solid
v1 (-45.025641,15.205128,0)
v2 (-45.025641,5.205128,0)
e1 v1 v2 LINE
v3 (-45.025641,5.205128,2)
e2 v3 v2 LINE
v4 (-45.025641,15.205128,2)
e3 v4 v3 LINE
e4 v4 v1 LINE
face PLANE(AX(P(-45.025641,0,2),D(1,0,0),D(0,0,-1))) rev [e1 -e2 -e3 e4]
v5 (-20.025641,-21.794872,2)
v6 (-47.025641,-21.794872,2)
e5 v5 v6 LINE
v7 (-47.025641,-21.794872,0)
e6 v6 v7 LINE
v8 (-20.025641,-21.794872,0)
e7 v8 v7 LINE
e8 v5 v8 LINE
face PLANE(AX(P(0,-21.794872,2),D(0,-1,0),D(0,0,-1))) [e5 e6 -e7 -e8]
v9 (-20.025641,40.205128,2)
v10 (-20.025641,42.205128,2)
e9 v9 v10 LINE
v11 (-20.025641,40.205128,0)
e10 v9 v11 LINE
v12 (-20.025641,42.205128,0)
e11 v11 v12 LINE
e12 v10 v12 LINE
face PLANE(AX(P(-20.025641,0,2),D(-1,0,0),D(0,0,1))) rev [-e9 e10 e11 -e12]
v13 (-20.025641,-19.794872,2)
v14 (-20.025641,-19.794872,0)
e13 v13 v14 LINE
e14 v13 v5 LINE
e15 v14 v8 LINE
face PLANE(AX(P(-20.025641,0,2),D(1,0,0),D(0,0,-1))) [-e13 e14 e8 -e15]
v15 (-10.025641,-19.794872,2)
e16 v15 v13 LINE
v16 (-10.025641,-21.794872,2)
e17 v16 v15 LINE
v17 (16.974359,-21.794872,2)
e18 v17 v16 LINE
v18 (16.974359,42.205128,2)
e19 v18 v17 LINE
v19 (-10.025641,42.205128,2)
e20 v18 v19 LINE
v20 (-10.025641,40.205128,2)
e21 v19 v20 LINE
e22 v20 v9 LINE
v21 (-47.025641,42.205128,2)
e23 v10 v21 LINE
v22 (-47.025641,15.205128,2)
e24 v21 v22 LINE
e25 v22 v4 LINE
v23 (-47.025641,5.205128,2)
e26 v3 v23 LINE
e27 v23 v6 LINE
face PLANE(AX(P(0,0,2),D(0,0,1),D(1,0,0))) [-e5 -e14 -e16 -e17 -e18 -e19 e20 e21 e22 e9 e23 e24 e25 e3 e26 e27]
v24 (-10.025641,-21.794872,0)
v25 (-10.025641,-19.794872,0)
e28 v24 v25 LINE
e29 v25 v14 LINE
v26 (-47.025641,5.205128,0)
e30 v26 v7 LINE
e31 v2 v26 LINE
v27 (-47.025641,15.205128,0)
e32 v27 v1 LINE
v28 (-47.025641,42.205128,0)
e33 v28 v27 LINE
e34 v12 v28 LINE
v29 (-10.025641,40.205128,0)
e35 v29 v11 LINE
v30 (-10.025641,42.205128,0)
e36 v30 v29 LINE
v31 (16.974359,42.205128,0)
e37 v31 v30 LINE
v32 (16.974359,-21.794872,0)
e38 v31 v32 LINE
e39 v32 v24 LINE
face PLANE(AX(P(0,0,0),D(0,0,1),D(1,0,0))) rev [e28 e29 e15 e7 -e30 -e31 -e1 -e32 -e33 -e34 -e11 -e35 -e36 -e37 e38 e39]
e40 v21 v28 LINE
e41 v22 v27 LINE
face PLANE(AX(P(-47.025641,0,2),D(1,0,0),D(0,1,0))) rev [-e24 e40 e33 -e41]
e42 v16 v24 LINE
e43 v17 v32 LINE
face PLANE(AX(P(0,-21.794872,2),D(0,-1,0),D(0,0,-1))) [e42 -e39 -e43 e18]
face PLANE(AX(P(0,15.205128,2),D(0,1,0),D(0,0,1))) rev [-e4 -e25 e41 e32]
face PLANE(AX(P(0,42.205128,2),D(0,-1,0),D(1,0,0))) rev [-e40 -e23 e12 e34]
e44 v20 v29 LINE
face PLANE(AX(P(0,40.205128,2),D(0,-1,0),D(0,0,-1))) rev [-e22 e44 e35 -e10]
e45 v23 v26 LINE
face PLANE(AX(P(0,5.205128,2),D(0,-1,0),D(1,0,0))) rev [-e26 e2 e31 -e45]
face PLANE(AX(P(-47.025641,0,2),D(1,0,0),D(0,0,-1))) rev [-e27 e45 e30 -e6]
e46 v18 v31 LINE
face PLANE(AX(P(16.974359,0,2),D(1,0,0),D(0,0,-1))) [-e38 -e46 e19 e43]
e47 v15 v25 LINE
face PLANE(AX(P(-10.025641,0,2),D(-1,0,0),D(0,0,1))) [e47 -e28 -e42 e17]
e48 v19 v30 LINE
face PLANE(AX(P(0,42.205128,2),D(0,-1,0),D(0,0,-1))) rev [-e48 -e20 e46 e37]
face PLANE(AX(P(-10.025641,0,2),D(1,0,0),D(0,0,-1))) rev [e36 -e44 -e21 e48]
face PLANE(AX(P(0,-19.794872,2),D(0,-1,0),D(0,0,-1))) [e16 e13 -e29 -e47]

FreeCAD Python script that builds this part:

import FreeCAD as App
import Part
import Sketcher
from FreeCAD import Vector
Q = App.Units.Quantity


def add_polygon(sketch, points):
    """Adds a closed chain of lines whose ends are joined by coincident constraints."""
    first, n = sketch.GeometryCount, len(points)
    for a, b in zip(points, points[1:] + points[:1]):
        sketch.addGeometry(Part.LineSegment(App.Vector(*a, 0), App.Vector(*b, 0)), False)
    for i in range(n):
        sketch.addConstraint(Sketcher.Constraint("Coincident", first + i, 2, first + (i + 1) % n, 1))

doc = App.newDocument("Part")
body = doc.addObject("PartDesign::Body", "Body")

# Sketch on XY plane
sketch1 = doc.addObject("Sketcher::SketchObject", "Sketch")
body.addObject(sketch1)
sketch1.AttachmentSupport = (doc.XY_Plane, [""])
sketch1.MapMode = "FlatFace"
add_polygon(sketch1, [(17, 42.2), (-10, 42.2), (-10, 40.2), (-20, 40.2), (-20, 42.2), (-47, 42.2), (-47, 15.2), (-45, 15.2), (-45, 5.2), (-47, 5.2), (-47, -21.8), (-20, -21.8), (-20, -19.8), (-10, -19.8), (-10, -21.8), (17, -21.8)])  # lines 0-15
sketch1.addConstraint([
    Sketcher.Constraint("Horizontal", 0),
    Sketcher.Constraint("Vertical", 1),
    Sketcher.Constraint("Horizontal", 2),
    Sketcher.Constraint("Vertical", 3),
    Sketcher.Constraint("Horizontal", 4),
    Sketcher.Constraint("Vertical", 5),
    Sketcher.Constraint("Horizontal", 6),
    Sketcher.Constraint("Vertical", 7),
    Sketcher.Constraint("Horizontal", 8),
    Sketcher.Constraint("Vertical", 9),
    Sketcher.Constraint("Horizontal", 10),
    Sketcher.Constraint("Vertical", 11),
    Sketcher.Constraint("Horizontal", 12),
    Sketcher.Constraint("Vertical", 13),
    Sketcher.Constraint("Horizontal", 14),
    Sketcher.Constraint("Vertical", 15),
    Sketcher.Constraint("Horizontal", 0, 2, 3, 2),
    Sketcher.Constraint("Horizontal", 10, 2, 13, 2),
    Sketcher.Constraint("Vertical", 5, 2, 8, 2),
    Sketcher.Constraint("Vertical", 3, 2, 10, 2),
    Sketcher.Constraint("Vertical", 1, 2, 12, 2),
    Sketcher.Constraint("Equal", 0, 4),
    Sketcher.Constraint("Equal", 8, 1),
    Sketcher.Constraint("Equal", 14, 5),
    Sketcher.Constraint("Equal", 12, 7),
    Sketcher.Constraint("Equal", 5, 9),
    Sketcher.Constraint("Equal", 3, 11),
    Sketcher.Constraint("DistanceX", 0, 2, 0, 1, Q("27 mm")),
    Sketcher.Constraint("DistanceX", 2, 2, 2, 1, Q("10 mm")),
    Sketcher.Constraint("DistanceX", 6, 1, 6, 2, Q("2 mm")),
    Sketcher.Constraint("DistanceX", 0, 2, -1, 1, Q("10.025641 mm")),
    Sketcher.Constraint("DistanceY", -1, 1, 0, 2, Q("42.205128 mm")),
])
pad1 = doc.addObject("PartDesign::Pad", "Pad")
body.addObject(pad1)
pad1.Profile = sketch1
pad1.Length = 2

doc.recompute()
